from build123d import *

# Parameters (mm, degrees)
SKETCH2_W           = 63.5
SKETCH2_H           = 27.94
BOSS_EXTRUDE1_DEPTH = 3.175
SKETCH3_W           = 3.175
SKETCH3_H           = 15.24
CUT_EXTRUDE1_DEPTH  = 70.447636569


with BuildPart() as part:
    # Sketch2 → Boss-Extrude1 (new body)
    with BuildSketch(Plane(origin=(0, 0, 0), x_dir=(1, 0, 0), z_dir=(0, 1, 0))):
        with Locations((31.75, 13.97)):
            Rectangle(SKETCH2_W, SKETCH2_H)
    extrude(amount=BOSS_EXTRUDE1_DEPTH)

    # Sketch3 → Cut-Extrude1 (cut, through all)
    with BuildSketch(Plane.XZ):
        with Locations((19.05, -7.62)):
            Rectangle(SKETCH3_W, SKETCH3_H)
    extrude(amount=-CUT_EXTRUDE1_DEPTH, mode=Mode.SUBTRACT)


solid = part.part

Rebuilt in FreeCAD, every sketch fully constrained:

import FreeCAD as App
import Part
import Sketcher
from FreeCAD import Vector
Q = App.Units.Quantity

doc = App.newDocument("Part")
params = doc.addObject("Spreadsheet::Sheet", "Params")
for row, (alias, value) in enumerate([
    ("sketch1_width", "2.5 in"),
    ("sketch1_height", "1.1 in"),
    ("pad1_length", "0.125 in"),
    ("sketch2_height", "0.6 in"),
    ("sketch2_width", "0.125 in"),
], start=1):
    params.set(f"A{row}", alias)
    params.set(f"B{row}", "=" + value)
    params.setAlias(f"B{row}", alias)

body = doc.addObject("PartDesign::Body", "Body")

sketch1 = body.newObject("Sketcher::SketchObject", "Sketch")
sketch1.AttachmentSupport = (doc.getObject("XZ_Plane"), [""])
sketch1.MapMode = "FlatFace"
sketch1.addGeometry([
    Part.LineSegment(Vector(0, -28, 0), Vector(0, 0, 0)),
    Part.LineSegment(Vector(0, 0, 0), Vector(64, 0, 0)),
    Part.LineSegment(Vector(64, 0, 0), Vector(64, -28, 0)),
    Part.LineSegment(Vector(64, -28, 0), Vector(0, -28, 0)),
], False)
sketch1.addConstraint([
    Sketcher.Constraint("Coincident", 0, 2, 1, 1),
    Sketcher.Constraint("Coincident", 1, 2, 2, 1),
    Sketcher.Constraint("Coincident", 2, 2, 3, 1),
    Sketcher.Constraint("Coincident", 3, 2, 0, 1),
    Sketcher.Constraint("Vertical", 0),
    Sketcher.Constraint("Horizontal", 1),
    Sketcher.Constraint("Vertical", 2),
    Sketcher.Constraint("Horizontal", 3),
    Sketcher.Constraint("Coincident", 0, 2, -1, 1),
    Sketcher.Constraint("DistanceX", 1, 1, 1, 2, Q("2.5 in")),
    Sketcher.Constraint("DistanceY", 0, 1, 0, 2, Q("1.1 in")),
])
sketch1.setExpression("Constraints[9]", "Params.sketch1_width")
sketch1.setExpression("Constraints[10]", "Params.sketch1_height")
pad1 = body.newObject("PartDesign::Pad", "Pad")
pad1.Profile = sketch1
pad1.setExpression("Length", "Params.pad1_length")
pad1.Reversed = True

sketch2 = body.newObject("Sketcher::SketchObject", "Sketch001")
sketch2.AttachmentSupport = (doc.getObject("XZ_Plane"), [""])
sketch2.MapMode = "FlatFace"
sketch2.addGeometry([
    Part.LineSegment(Vector(17.5, 0, 0), Vector(17.5, -15.2, 0)),
    Part.LineSegment(Vector(17.5, -15.2, 0), Vector(20.6, -15.2, 0)),
    Part.LineSegment(Vector(20.6, -15.2, 0), Vector(20.6, 0, 0)),
    Part.LineSegment(Vector(20.6, 0, 0), Vector(17.5, 0, 0)),
], False)
sketch2.addConstraint([
    Sketcher.Constraint("Coincident", 0, 2, 1, 1),
    Sketcher.Constraint("Coincident", 1, 2, 2, 1),
    Sketcher.Constraint("Coincident", 2, 2, 3, 1),
    Sketcher.Constraint("Coincident", 3, 2, 0, 1),
    Sketcher.Constraint("Vertical", 0),
    Sketcher.Constraint("Horizontal", 1),
    Sketcher.Constraint("Vertical", 2),
    Sketcher.Constraint("Horizontal", 3),
    Sketcher.Constraint("PointOnObject", 2, 2, -1),
    Sketcher.Constraint("DistanceY", 0, 2, 0, 1, Q("0.6 in")),
    Sketcher.Constraint("DistanceX", 1, 1, 1, 2, Q("0.125 in")),
    Sketcher.Constraint("DistanceX", -1, 1, 0, 2, Q("0.6875 in")),
])
sketch2.setExpression("Constraints[9]", "Params.sketch2_height")
sketch2.setExpression("Constraints[10]", "Params.sketch2_width")
pocket1 = body.newObject("PartDesign::Pocket", "Pocket")
pocket1.Profile = sketch2
pocket1.Type = "ThroughAll"

doc.recompute()
